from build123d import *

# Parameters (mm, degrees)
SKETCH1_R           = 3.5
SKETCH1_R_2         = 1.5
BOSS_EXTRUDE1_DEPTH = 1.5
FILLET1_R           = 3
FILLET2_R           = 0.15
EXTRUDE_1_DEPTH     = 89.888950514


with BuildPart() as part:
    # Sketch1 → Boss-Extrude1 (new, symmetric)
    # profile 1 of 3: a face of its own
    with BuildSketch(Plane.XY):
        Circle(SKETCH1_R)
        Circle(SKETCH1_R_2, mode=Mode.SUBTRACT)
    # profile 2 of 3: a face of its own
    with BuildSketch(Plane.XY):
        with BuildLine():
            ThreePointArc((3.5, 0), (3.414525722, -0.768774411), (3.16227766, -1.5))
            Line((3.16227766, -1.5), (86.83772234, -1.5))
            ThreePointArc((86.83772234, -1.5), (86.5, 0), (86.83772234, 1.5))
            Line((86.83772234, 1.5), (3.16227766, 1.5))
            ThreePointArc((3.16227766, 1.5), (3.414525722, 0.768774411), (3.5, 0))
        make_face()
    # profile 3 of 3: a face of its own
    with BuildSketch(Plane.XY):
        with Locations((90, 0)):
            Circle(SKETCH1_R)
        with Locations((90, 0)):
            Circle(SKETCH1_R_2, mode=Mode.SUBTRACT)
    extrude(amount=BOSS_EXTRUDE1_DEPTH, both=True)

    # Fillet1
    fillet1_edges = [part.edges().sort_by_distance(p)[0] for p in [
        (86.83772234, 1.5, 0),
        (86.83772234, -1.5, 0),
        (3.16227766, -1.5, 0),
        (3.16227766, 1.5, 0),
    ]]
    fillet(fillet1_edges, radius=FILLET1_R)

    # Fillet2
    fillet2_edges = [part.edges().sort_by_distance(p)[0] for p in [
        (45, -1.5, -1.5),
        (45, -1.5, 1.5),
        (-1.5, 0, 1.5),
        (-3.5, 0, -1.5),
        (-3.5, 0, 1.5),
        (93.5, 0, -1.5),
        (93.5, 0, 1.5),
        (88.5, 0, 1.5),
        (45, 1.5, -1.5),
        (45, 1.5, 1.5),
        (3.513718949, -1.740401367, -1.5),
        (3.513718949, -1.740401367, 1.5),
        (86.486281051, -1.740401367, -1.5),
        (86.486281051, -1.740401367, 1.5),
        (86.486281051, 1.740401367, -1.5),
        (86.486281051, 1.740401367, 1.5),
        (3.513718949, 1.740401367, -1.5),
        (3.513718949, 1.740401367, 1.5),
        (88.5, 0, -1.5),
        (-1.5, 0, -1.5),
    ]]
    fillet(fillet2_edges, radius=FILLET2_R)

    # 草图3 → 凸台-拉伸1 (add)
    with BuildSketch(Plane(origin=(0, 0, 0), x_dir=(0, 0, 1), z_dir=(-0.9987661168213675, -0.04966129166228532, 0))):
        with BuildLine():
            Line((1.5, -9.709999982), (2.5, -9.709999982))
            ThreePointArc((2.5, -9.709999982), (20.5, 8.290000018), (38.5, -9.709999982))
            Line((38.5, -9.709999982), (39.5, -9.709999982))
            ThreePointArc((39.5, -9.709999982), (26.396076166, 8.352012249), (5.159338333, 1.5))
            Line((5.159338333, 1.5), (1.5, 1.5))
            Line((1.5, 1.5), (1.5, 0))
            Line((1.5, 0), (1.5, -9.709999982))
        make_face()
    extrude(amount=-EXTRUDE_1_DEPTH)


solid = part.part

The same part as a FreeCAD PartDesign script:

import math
import FreeCAD as App
import Part
import Sketcher

V = App.Vector
Q = App.Units.Quantity


def edges_at(feature, points):
    """Names of the edges that pass closest to the given points."""
    edges = feature.Shape.Edges
    near = lambda p: min(range(len(edges)), key=lambda i: edges[i].distToShape(Part.Vertex(*p))[0])
    return sorted({f"Edge{near(p) + 1}" for p in points})

doc = App.newDocument("Part")
body = doc.addObject("PartDesign::Body", "Body")

sketch1 = body.newObject("Sketcher::SketchObject", "Sketch")
sketch1.AttachmentSupport = (doc.getObject("XY_Plane"), [""])
sketch1.MapMode = "FlatFace"
sketch1.addGeometry(Part.ArcOfCircle(Part.Circle(V(0, 0, 0), V(0, 0, 1), 3.5), math.radians(25), math.radians(335)), False)
sketch1.addGeometry(Part.LineSegment(V(3.2, -1.5, 0), V(86.8, -1.5, 0)), False)
sketch1.addGeometry(Part.ArcOfCircle(Part.Circle(V(90, 0, 0), V(0, 0, 1), 3.5), math.radians(-155), math.radians(155)), False)
sketch1.addGeometry(Part.LineSegment(V(86.8, 1.5, 0), V(3.2, 1.5, 0)), False)
sketch1.addGeometry(Part.Circle(V(0, 0, 0), V(0, 0, 1), 1.5), False)
sketch1.addGeometry(Part.Circle(V(90, 0, 0), V(0, 0, 1), 1.5), False)
sketch1.addConstraint(Sketcher.Constraint("Coincident", 0, 2, 1, 1))
sketch1.addConstraint(Sketcher.Constraint("Coincident", 1, 2, 2, 1))
sketch1.addConstraint(Sketcher.Constraint("Coincident", 2, 2, 3, 1))
sketch1.addConstraint(Sketcher.Constraint("Coincident", 3, 2, 0, 1))
sketch1.addConstraint(Sketcher.Constraint("Horizontal", 1))
sketch1.addConstraint(Sketcher.Constraint("Horizontal", 3))
sketch1.addConstraint(Sketcher.Constraint("Coincident", 0, 3, -1, 1))
sketch1.addConstraint(Sketcher.Constraint("Coincident", 4, 3, -1, 1))
sketch1.addConstraint(Sketcher.Constraint("Coincident", 5, 3, 2, 3))
sketch1.addConstraint(Sketcher.Constraint("Equal", 0, 2))
sketch1.addConstraint(Sketcher.Constraint("Equal", 4, 5))
sketch1.addConstraint(Sketcher.Constraint("Symmetric", 1, 2, 2, 2, -1))
sketch1.addConstraint(Sketcher.Constraint("Diameter", 4, Q("3 mm")))
sketch1.addConstraint(Sketcher.Constraint("Radius", 0, Q("3.5 mm")))
sketch1.addConstraint(Sketcher.Constraint("DistanceX", -1, 1, 2, 3, Q("90 mm")))
sketch1.addConstraint(Sketcher.Constraint("DistanceY", 1, 2, 2, 2, Q("3 mm")))
pad1 = body.newObject("PartDesign::Pad", "Pad")
pad1.Profile = sketch1
pad1.Length = 3
pad1.Midplane = True
doc.recompute()

fillet = body.newObject("PartDesign::Fillet", "Fillet")
fillet.Base = (pad1, edges_at(pad1, [
    (86.838, 1.5, 0),
    (86.838, -1.5, 0.75),
    (3.162, -1.5, -0.75),
    (3.162, 1.5, 0),
]))
fillet.Radius = 3
doc.recompute()

fillet2 = body.newObject("PartDesign::Fillet", "Fillet001")
fillet2.Base = (fillet, edges_at(fillet, [
    (45, -1.5, -1.5),
    (45, -1.5, 1.5),
    (-1.5, 0, 1.5),
    (-3.5, 0, -1.5),
    (-3.5, 0, 1.5),
    (93.5, 0, -1.5),
    (93.5, 0, 1.5),
    (88.5, 0, 1.5),
    (45, 1.5, -1.5),
    (45, 1.5, 1.5),
    (3.514, -1.74, -1.5),
    (3.514, -1.74, 1.5),
    (86.486, -1.74, -1.5),
    (86.486, -1.74, 1.5),
    (86.486, 1.74, -1.5),
    (86.486, 1.74, 1.5),
    (3.514, 1.74, -1.5),
    (3.514, 1.74, 1.5),
    (88.5, 0, -1.5),
    (-1.5, 0, -1.5),
]))
fillet2.Radius = 0.15

sketch2 = body.newObject("Sketcher::SketchObject", "Sketch001")
sketch2.Placement = App.Placement(V(0, 0, 0), App.Rotation(V(0, 0, 1), V(-0.049661292, 0.998766117, 0), V(-0.998766117, -0.049661292, 0), "ZXY"))
sketch2.addGeometry(Part.LineSegment(V(1.5, -9.7, 0), V(2.5, -9.7, 0)), False)
sketch2.addGeometry(Part.ArcOfCircle(Part.Circle(V(20.5, -9.7, 0), V(0, 0, 1), 18), math.radians(0), math.radians(180)), False)
sketch2.addGeometry(Part.LineSegment(V(38.5, -9.7, 0), V(39.5, -9.7, 0)), False)
sketch2.addGeometry(Part.ArcOfCircle(Part.Circle(V(20.5, -9.7, 0), V(0, 0, 1), 19), math.radians(0), math.radians(144)), False)
sketch2.addGeometry(Part.LineSegment(V(5.2, 1.5, 0), V(1.5, 1.5, 0)), False)
sketch2.addGeometry(Part.LineSegment(V(1.5, 1.5, 0), V(1.5, -9.7, 0)), False)
sketch2.addConstraint(Sketcher.Constraint("Coincident", 0, 2, 1, 2))
sketch2.addConstraint(Sketcher.Constraint("Coincident", 1, 1, 2, 1))
sketch2.addConstraint(Sketcher.Constraint("Coincident", 2, 2, 3, 1))
sketch2.addConstraint(Sketcher.Constraint("Coincident", 3, 2, 4, 1))
sketch2.addConstraint(Sketcher.Constraint("Coincident", 4, 2, 5, 1))
sketch2.addConstraint(Sketcher.Constraint("Coincident", 5, 2, 0, 1))
sketch2.addConstraint(Sketcher.Constraint("Horizontal", 0))
sketch2.addConstraint(Sketcher.Constraint("Horizontal", 2))
sketch2.addConstraint(Sketcher.Constraint("Horizontal", 4))
sketch2.addConstraint(Sketcher.Constraint("Vertical", 5))
sketch2.addConstraint(Sketcher.Constraint("Coincident", 3, 3, 1, 3))
sketch2.addConstraint(Sketcher.Constraint("Horizontal", 3, 3, 0, 2))
sketch2.addConstraint(Sketcher.Constraint("Horizontal", 0, 2, 1, 1))
sketch2.addConstraint(Sketcher.Constraint("Equal", 0, 2))
sketch2.addConstraint(Sketcher.Constraint("Radius", 1, Q("18 mm")))
sketch2.addConstraint(Sketcher.Constraint("Radius", 3, Q("19 mm")))
sketch2.addConstraint(Sketcher.Constraint("DistanceY", 5, 2, 5, 1, Q("11.21 mm")))
sketch2.addConstraint(Sketcher.Constraint("DistanceX", -1, 1, 1, 3, Q("20.5 mm")))
sketch2.addConstraint(Sketcher.Constraint("DistanceY", -1, 1, 3, 2, Q("1.5 mm")))
pad2 = body.newObject("PartDesign::Pad", "Pad001")
pad2.Profile = sketch2
pad2.Length = 89.888951
pad2.Reversed = True

doc.recompute()
